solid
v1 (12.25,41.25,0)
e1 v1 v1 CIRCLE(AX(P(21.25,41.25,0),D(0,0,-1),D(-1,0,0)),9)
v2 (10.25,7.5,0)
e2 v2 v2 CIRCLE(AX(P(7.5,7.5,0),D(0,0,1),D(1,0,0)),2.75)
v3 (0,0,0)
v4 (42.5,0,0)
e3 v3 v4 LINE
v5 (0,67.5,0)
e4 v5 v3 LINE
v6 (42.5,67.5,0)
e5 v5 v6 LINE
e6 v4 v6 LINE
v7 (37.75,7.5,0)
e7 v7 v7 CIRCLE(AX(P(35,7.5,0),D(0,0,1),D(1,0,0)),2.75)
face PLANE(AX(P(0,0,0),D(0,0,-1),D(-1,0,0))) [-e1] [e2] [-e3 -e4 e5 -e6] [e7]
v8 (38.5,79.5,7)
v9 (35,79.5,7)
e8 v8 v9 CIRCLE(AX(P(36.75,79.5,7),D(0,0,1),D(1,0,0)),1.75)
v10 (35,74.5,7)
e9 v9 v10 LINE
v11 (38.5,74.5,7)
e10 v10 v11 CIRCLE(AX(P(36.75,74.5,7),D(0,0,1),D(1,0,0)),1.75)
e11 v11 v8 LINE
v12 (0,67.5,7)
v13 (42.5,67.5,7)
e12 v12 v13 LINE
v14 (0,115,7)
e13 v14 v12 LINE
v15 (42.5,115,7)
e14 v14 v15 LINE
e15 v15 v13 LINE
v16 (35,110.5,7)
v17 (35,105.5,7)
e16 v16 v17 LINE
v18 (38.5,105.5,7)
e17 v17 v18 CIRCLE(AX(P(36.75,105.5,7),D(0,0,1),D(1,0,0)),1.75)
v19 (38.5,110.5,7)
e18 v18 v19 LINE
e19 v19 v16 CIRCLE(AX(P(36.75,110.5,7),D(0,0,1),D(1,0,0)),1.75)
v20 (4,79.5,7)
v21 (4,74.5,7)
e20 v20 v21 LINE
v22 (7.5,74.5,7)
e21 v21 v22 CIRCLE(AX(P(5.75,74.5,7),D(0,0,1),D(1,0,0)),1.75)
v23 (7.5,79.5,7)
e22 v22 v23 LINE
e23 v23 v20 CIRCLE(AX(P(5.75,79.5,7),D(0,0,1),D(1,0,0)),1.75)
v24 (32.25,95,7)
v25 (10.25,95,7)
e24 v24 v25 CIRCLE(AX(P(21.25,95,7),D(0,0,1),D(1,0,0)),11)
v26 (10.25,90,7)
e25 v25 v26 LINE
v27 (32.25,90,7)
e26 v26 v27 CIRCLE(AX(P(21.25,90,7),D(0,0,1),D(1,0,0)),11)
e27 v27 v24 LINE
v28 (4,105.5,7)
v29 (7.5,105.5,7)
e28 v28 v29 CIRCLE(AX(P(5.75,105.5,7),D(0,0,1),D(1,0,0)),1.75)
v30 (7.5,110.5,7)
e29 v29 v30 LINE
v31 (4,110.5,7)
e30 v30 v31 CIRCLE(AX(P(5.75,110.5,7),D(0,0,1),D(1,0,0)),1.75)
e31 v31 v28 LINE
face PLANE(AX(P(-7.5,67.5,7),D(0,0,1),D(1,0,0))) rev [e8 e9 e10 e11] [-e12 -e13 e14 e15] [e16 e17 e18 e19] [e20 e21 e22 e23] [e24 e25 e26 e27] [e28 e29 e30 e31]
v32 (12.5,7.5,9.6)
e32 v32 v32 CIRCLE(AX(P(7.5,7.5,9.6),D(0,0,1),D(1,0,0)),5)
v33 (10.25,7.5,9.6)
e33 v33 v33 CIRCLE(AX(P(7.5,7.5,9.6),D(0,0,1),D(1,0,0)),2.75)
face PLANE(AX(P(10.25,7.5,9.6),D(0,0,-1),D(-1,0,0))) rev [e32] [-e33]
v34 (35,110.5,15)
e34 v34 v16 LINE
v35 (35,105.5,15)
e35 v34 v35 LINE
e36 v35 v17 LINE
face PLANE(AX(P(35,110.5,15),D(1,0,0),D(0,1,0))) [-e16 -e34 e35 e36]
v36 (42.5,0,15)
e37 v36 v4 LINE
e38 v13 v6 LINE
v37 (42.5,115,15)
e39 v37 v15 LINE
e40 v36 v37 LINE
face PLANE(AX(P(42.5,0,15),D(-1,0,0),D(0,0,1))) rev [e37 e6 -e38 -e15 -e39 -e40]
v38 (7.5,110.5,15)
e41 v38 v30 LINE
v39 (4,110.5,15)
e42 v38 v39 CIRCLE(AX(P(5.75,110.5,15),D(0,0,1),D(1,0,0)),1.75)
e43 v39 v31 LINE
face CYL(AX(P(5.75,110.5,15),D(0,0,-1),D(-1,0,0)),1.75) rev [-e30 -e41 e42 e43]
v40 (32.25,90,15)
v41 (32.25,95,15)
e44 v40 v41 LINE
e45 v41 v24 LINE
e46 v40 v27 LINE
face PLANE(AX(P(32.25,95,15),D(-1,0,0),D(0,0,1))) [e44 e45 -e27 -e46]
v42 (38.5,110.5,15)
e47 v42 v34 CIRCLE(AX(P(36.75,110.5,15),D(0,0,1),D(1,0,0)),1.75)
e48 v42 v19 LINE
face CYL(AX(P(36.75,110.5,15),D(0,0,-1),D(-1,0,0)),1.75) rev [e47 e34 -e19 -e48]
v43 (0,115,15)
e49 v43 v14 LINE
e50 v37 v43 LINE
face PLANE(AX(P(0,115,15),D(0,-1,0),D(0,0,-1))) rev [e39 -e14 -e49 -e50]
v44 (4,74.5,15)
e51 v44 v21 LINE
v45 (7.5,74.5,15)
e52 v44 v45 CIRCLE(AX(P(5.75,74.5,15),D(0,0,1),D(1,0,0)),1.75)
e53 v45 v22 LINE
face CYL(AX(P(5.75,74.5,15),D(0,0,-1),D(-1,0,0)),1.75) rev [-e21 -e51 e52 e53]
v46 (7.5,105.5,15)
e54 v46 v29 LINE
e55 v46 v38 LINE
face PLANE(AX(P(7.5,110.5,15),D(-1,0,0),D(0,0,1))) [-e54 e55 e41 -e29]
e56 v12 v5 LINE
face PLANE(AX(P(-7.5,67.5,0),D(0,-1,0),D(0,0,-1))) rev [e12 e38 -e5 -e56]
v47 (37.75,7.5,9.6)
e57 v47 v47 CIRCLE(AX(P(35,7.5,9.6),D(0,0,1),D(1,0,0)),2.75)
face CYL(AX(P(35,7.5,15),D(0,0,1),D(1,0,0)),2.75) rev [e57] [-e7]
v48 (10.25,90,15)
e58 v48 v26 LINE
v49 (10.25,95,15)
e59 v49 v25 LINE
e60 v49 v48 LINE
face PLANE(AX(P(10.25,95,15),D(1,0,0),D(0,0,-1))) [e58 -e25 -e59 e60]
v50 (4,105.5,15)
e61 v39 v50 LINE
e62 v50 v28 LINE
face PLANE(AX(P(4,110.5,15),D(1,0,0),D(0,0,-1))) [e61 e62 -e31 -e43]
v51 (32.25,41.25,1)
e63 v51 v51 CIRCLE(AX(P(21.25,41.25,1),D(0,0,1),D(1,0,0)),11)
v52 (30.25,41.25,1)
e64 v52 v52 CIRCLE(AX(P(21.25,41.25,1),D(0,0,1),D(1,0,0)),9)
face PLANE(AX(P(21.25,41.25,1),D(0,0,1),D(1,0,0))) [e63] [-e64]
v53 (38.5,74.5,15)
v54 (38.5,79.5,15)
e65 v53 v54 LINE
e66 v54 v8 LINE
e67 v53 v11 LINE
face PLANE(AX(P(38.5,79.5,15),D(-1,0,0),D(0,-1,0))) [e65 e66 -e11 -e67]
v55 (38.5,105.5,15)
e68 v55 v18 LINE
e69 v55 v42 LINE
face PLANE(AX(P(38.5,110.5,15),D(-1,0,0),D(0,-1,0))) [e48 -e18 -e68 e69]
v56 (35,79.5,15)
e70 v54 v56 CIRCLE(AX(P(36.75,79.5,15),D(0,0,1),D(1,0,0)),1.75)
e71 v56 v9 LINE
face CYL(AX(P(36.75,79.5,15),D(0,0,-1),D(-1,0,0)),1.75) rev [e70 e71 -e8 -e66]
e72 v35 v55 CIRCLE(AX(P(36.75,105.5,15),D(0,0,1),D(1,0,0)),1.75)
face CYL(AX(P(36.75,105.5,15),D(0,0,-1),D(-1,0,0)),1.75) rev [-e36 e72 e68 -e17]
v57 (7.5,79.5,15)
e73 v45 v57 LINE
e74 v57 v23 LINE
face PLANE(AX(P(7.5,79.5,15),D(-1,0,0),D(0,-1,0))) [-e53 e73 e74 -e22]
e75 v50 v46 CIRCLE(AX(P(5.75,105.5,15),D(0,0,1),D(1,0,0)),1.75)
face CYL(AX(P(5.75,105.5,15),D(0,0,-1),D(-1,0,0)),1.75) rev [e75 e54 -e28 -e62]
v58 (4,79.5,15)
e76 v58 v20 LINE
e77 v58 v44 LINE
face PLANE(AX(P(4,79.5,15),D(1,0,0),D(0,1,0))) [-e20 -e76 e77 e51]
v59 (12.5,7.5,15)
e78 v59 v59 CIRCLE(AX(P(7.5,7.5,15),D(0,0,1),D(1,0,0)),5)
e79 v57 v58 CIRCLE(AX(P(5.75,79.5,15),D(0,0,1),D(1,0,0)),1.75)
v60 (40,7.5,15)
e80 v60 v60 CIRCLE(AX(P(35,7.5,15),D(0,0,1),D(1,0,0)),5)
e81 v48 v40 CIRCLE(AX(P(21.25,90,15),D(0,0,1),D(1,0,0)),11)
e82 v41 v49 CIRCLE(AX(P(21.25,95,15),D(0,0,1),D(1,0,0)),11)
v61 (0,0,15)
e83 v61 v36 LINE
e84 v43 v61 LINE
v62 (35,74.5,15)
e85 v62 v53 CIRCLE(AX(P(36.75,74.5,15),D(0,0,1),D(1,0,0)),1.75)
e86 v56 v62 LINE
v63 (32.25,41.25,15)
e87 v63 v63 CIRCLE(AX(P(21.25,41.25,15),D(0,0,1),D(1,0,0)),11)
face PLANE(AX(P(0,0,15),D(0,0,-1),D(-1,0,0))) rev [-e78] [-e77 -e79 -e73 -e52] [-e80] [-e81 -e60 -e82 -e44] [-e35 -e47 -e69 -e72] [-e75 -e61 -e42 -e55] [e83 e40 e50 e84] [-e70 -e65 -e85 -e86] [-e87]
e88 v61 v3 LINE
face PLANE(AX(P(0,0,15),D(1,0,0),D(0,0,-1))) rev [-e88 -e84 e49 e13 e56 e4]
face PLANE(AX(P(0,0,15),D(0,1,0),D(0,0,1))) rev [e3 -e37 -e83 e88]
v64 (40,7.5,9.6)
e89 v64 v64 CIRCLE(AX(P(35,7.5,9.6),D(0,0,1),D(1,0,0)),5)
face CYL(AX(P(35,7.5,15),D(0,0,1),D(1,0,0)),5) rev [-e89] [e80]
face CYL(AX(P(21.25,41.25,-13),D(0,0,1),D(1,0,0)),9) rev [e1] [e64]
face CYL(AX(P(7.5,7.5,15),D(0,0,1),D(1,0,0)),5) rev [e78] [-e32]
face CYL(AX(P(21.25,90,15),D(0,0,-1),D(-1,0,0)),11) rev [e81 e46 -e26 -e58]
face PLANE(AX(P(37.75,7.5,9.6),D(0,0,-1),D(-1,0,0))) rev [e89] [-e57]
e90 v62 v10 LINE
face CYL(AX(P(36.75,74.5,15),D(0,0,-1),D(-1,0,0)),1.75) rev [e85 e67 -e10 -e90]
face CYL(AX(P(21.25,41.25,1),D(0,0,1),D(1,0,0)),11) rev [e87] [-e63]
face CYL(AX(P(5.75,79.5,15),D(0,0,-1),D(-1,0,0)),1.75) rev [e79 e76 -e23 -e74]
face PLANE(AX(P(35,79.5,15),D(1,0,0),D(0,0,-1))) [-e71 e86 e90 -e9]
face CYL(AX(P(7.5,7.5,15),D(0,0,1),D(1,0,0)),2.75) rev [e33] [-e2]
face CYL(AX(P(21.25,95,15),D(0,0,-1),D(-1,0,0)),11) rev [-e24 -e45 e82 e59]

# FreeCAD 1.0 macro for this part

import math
import FreeCAD as App
import Part
import Sketcher

V = App.Vector
Q = App.Units.Quantity

doc = App.newDocument("Part")
params = doc.addObject("Spreadsheet::Sheet", "Params")
for row, (alias, value) in enumerate([
    ("sketch1_radius", "11 mm"),
    ("sketch1_height", "115 mm"),
    ("sketch1_height2", "5 mm"),
    ("sketch1_radius2", "1.75 mm"),
    ("sketch1_width", "42.5 mm"),
    ("pad1_length", "15 mm"),
    ("sketch2_diameter", "22 mm"),
    ("pocket1_length", "14 mm"),
    ("sketch3_diameter", "18 mm"),
    ("pocket2_length", "14 mm"),
    ("sketch4_diameter", "5.5 mm"),
    ("hole_diameter", "5.5 mm"),
    ("hole_cbore_diameter", "10 mm"),
    ("hole_cbore_depth", "5.4 mm"),
    ("sketch5_height", "7 mm"),
    ("sketch5_width", "47.5 mm"),
    ("pocket3_length", "50 mm"),
], start=1):
    params.set(f"A{row}", alias)
    params.set(f"B{row}", "=" + value)
    params.setAlias(f"B{row}", alias)

body = doc.addObject("PartDesign::Body", "Body")

# Sketch on XY plane
sketch1 = doc.addObject("Sketcher::SketchObject", "Sketch")
body.addObject(sketch1)
sketch1.AttachmentSupport = (doc.XY_Plane, [""])
sketch1.MapMode = "FlatFace"
sketch1.addGeometry([
    Part.LineSegment(V(0, 115, 0), V(0, 0, 0)),  # 0
    Part.LineSegment(V(0, 0, 0), V(42.5, 0, 0)),  # 1
    Part.LineSegment(V(42.5, 0, 0), V(42.5, 115, 0)),  # 2
    Part.LineSegment(V(42.5, 115, 0), V(0, 115, 0)),  # 3
    Part.ArcOfCircle(Part.Circle(V(5.8, 79.5, 0), V(0, 0, 1), 1.8), math.radians(0), math.radians(180)),  # 4
    Part.LineSegment(V(7.5, 79.5, 0), V(7.5, 74.5, 0)),  # 5
    Part.ArcOfCircle(Part.Circle(V(5.8, 74.5, 0), V(0, 0, 1), 1.8), math.radians(180), math.radians(360)),  # 6
    Part.LineSegment(V(4, 74.5, 0), V(4, 79.5, 0)),  # 7
    Part.ArcOfCircle(Part.Circle(V(36.8, 79.5, 0), V(0, 0, 1), 1.8), math.radians(0), math.radians(180)),  # 8
    Part.LineSegment(V(38.5, 79.5, 0), V(38.5, 74.5, 0)),  # 9
    Part.ArcOfCircle(Part.Circle(V(36.8, 74.5, 0), V(0, 0, 1), 1.8), math.radians(180), math.radians(360)),  # 10
    Part.LineSegment(V(35, 74.5, 0), V(35, 79.5, 0)),  # 11
    Part.ArcOfCircle(Part.Circle(V(5.8, 110.5, 0), V(0, 0, 1), 1.8), math.radians(0), math.radians(180)),  # 12
    Part.LineSegment(V(7.5, 110.5, 0), V(7.5, 105.5, 0)),  # 13
    Part.ArcOfCircle(Part.Circle(V(5.8, 105.5, 0), V(0, 0, 1), 1.8), math.radians(180), math.radians(360)),  # 14
    Part.LineSegment(V(4, 105.5, 0), V(4, 110.5, 0)),  # 15
    Part.ArcOfCircle(Part.Circle(V(21.2, 95, 0), V(0, 0, 1), 11), math.radians(0), math.radians(180)),  # 16
    Part.LineSegment(V(32.2, 95, 0), V(32.2, 90, 0)),  # 17
    Part.ArcOfCircle(Part.Circle(V(21.2, 90, 0), V(0, 0, 1), 11), math.radians(180), math.radians(360)),  # 18
    Part.LineSegment(V(10.2, 90, 0), V(10.2, 95, 0)),  # 19
    Part.ArcOfCircle(Part.Circle(V(36.8, 110.5, 0), V(0, 0, 1), 1.8), math.radians(0), math.radians(180)),  # 20
    Part.LineSegment(V(38.5, 110.5, 0), V(38.5, 105.5, 0)),  # 21
    Part.ArcOfCircle(Part.Circle(V(36.8, 105.5, 0), V(0, 0, 1), 1.8), math.radians(180), math.radians(360)),  # 22
    Part.LineSegment(V(35, 105.5, 0), V(35, 110.5, 0)),  # 23
], False)
sketch1.addConstraint([
    Sketcher.Constraint("Coincident", 0, 2, 1, 1),
    Sketcher.Constraint("Coincident", 1, 2, 2, 1),
    Sketcher.Constraint("Coincident", 2, 2, 3, 1),
    Sketcher.Constraint("Coincident", 3, 2, 0, 1),
    Sketcher.Constraint("Tangent", 4, 1, 5, 1),
    Sketcher.Constraint("Tangent", 5, 2, 6, 2),
    Sketcher.Constraint("Tangent", 6, 1, 7, 1),
    Sketcher.Constraint("Tangent", 7, 2, 4, 2),
    Sketcher.Constraint("Tangent", 8, 1, 9, 1),
    Sketcher.Constraint("Tangent", 9, 2, 10, 2),
    Sketcher.Constraint("Tangent", 10, 1, 11, 1),
    Sketcher.Constraint("Tangent", 11, 2, 8, 2),
    Sketcher.Constraint("Tangent", 12, 1, 13, 1),
    Sketcher.Constraint("Tangent", 13, 2, 14, 2),
    Sketcher.Constraint("Tangent", 14, 1, 15, 1),
    Sketcher.Constraint("Tangent", 15, 2, 12, 2),
    Sketcher.Constraint("Tangent", 16, 1, 17, 1),
    Sketcher.Constraint("Tangent", 17, 2, 18, 2),
    Sketcher.Constraint("Tangent", 18, 1, 19, 1),
    Sketcher.Constraint("Tangent", 19, 2, 16, 2),
    Sketcher.Constraint("Tangent", 20, 1, 21, 1),
    Sketcher.Constraint("Tangent", 21, 2, 22, 2),
    Sketcher.Constraint("Tangent", 22, 1, 23, 1),
    Sketcher.Constraint("Tangent", 23, 2, 20, 2),
    Sketcher.Constraint("Vertical", 0),
    Sketcher.Constraint("Horizontal", 1),
    Sketcher.Constraint("Vertical", 2),
    Sketcher.Constraint("Horizontal", 3),
    Sketcher.Constraint("Vertical", 5),
    Sketcher.Constraint("Vertical", 7),
    Sketcher.Constraint("Vertical", 9),
    Sketcher.Constraint("Vertical", 11),
    Sketcher.Constraint("Vertical", 13),
    Sketcher.Constraint("Vertical", 15),
    Sketcher.Constraint("Vertical", 17),
    Sketcher.Constraint("Vertical", 19),
    Sketcher.Constraint("Vertical", 21),
    Sketcher.Constraint("Vertical", 23),
    Sketcher.Constraint("Coincident", 0, 2, -1, 1),
    Sketcher.Constraint("Equal", 6, 8),
    Sketcher.Constraint("Equal", 10, 12),
    Sketcher.Constraint("Equal", 14, 20),
    Sketcher.Constraint("Horizontal", 4, 3, 8, 3),
    Sketcher.Constraint("Horizontal", 6, 3, 10, 3),
    Sketcher.Constraint("Horizontal", 12, 3, 20, 3),
    Sketcher.Constraint("Horizontal", 14, 3, 22, 3),
    Sketcher.Constraint("Vertical", 6, 3, 12, 3),
    Sketcher.Constraint("Vertical", 10, 3, 20, 3),
    Sketcher.Constraint("Equal", 11, 13),
    Sketcher.Constraint("Equal", 15, 17),
    Sketcher.Constraint("Radius", 16, Q("11 mm")),
    Sketcher.Constraint("DistanceY", 0, 2, 0, 1, Q("115 mm")),
    Sketcher.Constraint("DistanceY", 5, 2, 5, 1, Q("5 mm")),
    Sketcher.Constraint("Radius", 4, Q("1.75 mm")),
    Sketcher.Constraint("DistanceX", 1, 1, 1, 2, Q("42.5 mm")),
    Sketcher.Constraint("DistanceY", -1, 1, 16, 3, Q("95 mm")),
    Sketcher.Constraint("DistanceX", -1, 1, 6, 1, Q("4 mm")),
    Sketcher.Constraint("DistanceX", -1, 1, 10, 1, Q("35 mm")),
    Sketcher.Constraint("DistanceY", 4, 3, 12, 3, Q("31 mm")),
    Sketcher.Constraint("DistanceY", -1, 1, 4, 3, Q("79.5 mm")),
    Sketcher.Constraint("DistanceX", 14, 3, 16, 3, Q("15.5 mm")),
])
sketch1.setExpression("Constraints[50]", "Params.sketch1_radius")
sketch1.setExpression("Constraints[51]", "Params.sketch1_height")
sketch1.setExpression("Constraints[52]", "Params.sketch1_height2")
sketch1.setExpression("Constraints[53]", "Params.sketch1_radius2")
sketch1.setExpression("Constraints[54]", "Params.sketch1_width")
pad1 = doc.addObject("PartDesign::Pad", "Pad")
body.addObject(pad1)
pad1.Profile = sketch1
pad1.setExpression("Length", "Params.pad1_length")

# Sketch on XY plane
sketch2 = doc.addObject("Sketcher::SketchObject", "Sketch001")
body.addObject(sketch2)
sketch2.AttachmentSupport = (doc.XY_Plane, [""])
sketch2.MapMode = "FlatFace"
sketch2.AttachmentOffset = App.Placement(V(0, 0, 15), App.Rotation())
sketch2.addGeometry(Part.Circle(V(21, 41, 0), V(0, 0, 1), 11), False)
sketch2.addConstraint([
    Sketcher.Constraint("Diameter", 0, Q("22 mm")),
    Sketcher.Constraint("DistanceX", -1, 1, 0, 3, Q("21.25 mm")),
    Sketcher.Constraint("DistanceY", -1, 1, 0, 3, Q("41.25 mm")),
])
sketch2.setExpression("Constraints[0]", "Params.sketch2_diameter")
pocket1 = doc.addObject("PartDesign::Pocket", "Pocket")
body.addObject(pocket1)
pocket1.Profile = sketch2
pocket1.setExpression("Length", "Params.pocket1_length")

# Sketch on XY plane
sketch3 = doc.addObject("Sketcher::SketchObject", "Sketch002")
body.addObject(sketch3)
sketch3.AttachmentSupport = (doc.XY_Plane, [""])
sketch3.MapMode = "FlatFace"
sketch3.AttachmentOffset = App.Placement(V(0, 0, 1), App.Rotation())
sketch3.addGeometry(Part.Circle(V(21, 41, 0), V(0, 0, 1), 9), False)
sketch3.addConstraint([
    Sketcher.Constraint("Diameter", 0, Q("18 mm")),
    Sketcher.Constraint("DistanceX", -1, 1, 0, 3, Q("21.25 mm")),
    Sketcher.Constraint("DistanceY", -1, 1, 0, 3, Q("41.25 mm")),
])
sketch3.setExpression("Constraints[0]", "Params.sketch3_diameter")
pocket2 = doc.addObject("PartDesign::Pocket", "Pocket001")
body.addObject(pocket2)
pocket2.Profile = sketch3
pocket2.setExpression("Length", "Params.pocket2_length")

# Sketch on XY plane
sketch4 = doc.addObject("Sketcher::SketchObject", "Sketch003")
body.addObject(sketch4)
sketch4.AttachmentSupport = (doc.XY_Plane, [""])
sketch4.MapMode = "FlatFace"
sketch4.AttachmentOffset = App.Placement(V(0, 0, 15), App.Rotation())
sketch4.addGeometry([
    Part.Circle(V(35, 7.5, 0), V(0, 0, 1), 2.8),
    Part.Circle(V(7.5, 7.5, 0), V(0, 0, 1), 2.8),
], False)
sketch4.addConstraint([
    Sketcher.Constraint("Equal", 0, 1),
    Sketcher.Constraint("Horizontal", 0, 3, 1, 3),
    Sketcher.Constraint("Diameter", 0, Q("5.5 mm")),
    Sketcher.Constraint("DistanceX", -1, 1, 0, 3, Q("35 mm")),
    Sketcher.Constraint("DistanceY", -1, 1, 0, 3, Q("7.5 mm")),
    Sketcher.Constraint("DistanceX", -1, 1, 1, 3, Q("7.5 mm")),
])
sketch4.setExpression("Constraints[2]", "Params.sketch4_diameter")
doc.recompute()
hole = doc.addObject("PartDesign::Hole", "Hole")
body.addObject(hole)
hole.Profile = sketch4
hole.ThreadType = "None"
hole.setExpression("Diameter", "Params.hole_diameter")
hole.DepthType = "ThroughAll"
hole.HoleCutType = "Counterbore"
hole.setExpression("HoleCutDiameter", "Params.hole_cbore_diameter")
hole.setExpression("HoleCutDepth", "Params.hole_cbore_depth")

# Sketch on YZ plane
sketch5 = doc.addObject("Sketcher::SketchObject", "Sketch004")
body.addObject(sketch5)
sketch5.AttachmentSupport = (doc.YZ_Plane, [""])
sketch5.MapMode = "FlatFace"
sketch5.AttachmentOffset = App.Placement(V(0, 0, 42.5), App.Rotation())
sketch5.addGeometry([
    Part.LineSegment(V(115, 7, 0), V(68, 7, 0)),
    Part.LineSegment(V(68, 7, 0), V(68, 0, 0)),
    Part.LineSegment(V(68, 0, 0), V(115, 0, 0)),
    Part.LineSegment(V(115, 0, 0), V(115, 7, 0)),
], False)
sketch5.addConstraint([
    Sketcher.Constraint("Coincident", 0, 2, 1, 1),
    Sketcher.Constraint("Coincident", 1, 2, 2, 1),
    Sketcher.Constraint("Coincident", 2, 2, 3, 1),
    Sketcher.Constraint("Coincident", 3, 2, 0, 1),
    Sketcher.Constraint("Horizontal", 0),
    Sketcher.Constraint("Vertical", 1),
    Sketcher.Constraint("Horizontal", 2),
    Sketcher.Constraint("Vertical", 3),
    Sketcher.Constraint("PointOnObject", 1, 2, -1),
    Sketcher.Constraint("DistanceY", 1, 2, 1, 1, Q("7 mm")),
    Sketcher.Constraint("DistanceX", 0, 2, 0, 1, Q("47.5 mm")),
    Sketcher.Constraint("DistanceX", -1, 1, 2, 2, Q("115 mm")),
])
sketch5.setExpression("Constraints[9]", "Params.sketch5_height")
sketch5.setExpression("Constraints[10]", "Params.sketch5_width")
pocket3 = doc.addObject("PartDesign::Pocket", "Pocket002")
body.addObject(pocket3)
pocket3.Profile = sketch5
pocket3.setExpression("Length", "Params.pocket3_length")

doc.recompute()
